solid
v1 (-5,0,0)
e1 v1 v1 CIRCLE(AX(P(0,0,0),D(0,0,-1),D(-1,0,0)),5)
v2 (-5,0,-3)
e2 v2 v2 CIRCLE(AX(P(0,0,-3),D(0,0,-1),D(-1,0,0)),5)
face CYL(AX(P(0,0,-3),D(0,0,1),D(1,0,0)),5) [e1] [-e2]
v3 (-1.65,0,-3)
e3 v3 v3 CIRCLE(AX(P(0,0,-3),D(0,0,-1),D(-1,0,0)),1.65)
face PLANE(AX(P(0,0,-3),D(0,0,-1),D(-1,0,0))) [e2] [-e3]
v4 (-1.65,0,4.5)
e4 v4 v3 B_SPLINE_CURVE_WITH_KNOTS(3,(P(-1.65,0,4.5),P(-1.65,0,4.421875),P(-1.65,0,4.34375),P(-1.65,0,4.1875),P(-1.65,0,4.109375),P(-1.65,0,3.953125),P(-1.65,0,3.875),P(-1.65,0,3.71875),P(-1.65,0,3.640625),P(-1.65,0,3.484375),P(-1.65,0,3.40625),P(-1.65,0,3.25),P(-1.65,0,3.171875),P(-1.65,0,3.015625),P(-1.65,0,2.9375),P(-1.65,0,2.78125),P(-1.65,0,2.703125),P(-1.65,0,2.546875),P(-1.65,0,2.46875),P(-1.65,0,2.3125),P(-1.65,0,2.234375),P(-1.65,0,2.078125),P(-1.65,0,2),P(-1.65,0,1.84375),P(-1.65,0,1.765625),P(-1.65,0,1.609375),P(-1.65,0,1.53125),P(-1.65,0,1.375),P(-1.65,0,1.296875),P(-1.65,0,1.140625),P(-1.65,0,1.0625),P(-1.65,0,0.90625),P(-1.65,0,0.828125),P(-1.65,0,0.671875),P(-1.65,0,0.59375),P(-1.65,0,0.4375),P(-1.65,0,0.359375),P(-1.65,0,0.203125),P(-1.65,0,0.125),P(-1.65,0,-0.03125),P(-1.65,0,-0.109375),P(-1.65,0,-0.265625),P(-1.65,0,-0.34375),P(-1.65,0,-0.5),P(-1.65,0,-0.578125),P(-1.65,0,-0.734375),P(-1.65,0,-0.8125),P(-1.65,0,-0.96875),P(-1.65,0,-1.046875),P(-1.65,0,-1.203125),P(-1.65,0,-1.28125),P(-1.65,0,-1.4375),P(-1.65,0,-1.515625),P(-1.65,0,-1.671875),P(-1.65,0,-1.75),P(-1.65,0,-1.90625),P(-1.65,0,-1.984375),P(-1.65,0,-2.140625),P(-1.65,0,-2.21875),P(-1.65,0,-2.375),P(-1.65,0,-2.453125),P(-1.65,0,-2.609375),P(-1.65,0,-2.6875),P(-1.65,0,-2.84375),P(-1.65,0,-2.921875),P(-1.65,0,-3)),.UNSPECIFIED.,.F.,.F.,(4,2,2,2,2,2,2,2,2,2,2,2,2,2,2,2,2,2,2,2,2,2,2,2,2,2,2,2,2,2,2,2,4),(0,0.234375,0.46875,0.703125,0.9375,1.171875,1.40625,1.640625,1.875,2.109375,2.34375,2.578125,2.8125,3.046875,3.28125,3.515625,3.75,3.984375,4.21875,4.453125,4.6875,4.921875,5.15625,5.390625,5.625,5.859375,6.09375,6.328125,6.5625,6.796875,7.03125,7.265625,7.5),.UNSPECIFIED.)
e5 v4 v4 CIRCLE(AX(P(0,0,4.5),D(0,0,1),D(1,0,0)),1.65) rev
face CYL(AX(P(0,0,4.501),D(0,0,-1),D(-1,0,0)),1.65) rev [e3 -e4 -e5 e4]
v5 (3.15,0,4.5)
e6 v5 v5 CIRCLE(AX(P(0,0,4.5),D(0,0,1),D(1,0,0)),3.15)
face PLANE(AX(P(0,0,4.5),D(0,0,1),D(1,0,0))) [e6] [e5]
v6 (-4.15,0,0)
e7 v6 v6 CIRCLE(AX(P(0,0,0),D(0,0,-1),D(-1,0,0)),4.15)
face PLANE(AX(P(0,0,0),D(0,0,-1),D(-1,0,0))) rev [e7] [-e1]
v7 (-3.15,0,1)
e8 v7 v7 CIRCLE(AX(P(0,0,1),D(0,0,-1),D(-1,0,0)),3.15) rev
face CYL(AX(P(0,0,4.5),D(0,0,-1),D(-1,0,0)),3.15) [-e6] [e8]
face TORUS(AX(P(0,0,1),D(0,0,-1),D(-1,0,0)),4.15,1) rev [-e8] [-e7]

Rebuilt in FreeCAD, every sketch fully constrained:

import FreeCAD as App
import Part
import Sketcher

V = App.Vector
Q = App.Units.Quantity


def edges_at(feature, points):
    """Names of the edges that pass closest to the given points."""
    edges = feature.Shape.Edges
    near = lambda p: min(range(len(edges)), key=lambda i: edges[i].distToShape(Part.Vertex(*p))[0])
    return sorted({f"Edge{near(p) + 1}" for p in points})

doc = App.newDocument("Part")
params = doc.addObject("Spreadsheet::Sheet", "Params")
for row, (alias, value) in enumerate([
    ("sketch1_diameter", "6.3 mm"),
    ("pad1_length", "4.5 mm"),
    ("sketch2_diameter", "10 mm"),
    ("pad2_length", "3 mm"),
    ("fillet_radius", "1 mm"),
    ("sketch3_diameter", "3.3 mm"),
], start=1):
    params.set(f"A{row}", alias)
    params.set(f"B{row}", "=" + value)
    params.setAlias(f"B{row}", alias)

body = doc.addObject("PartDesign::Body", "Body")

sketch1 = body.newObject("Sketcher::SketchObject", "Sketch")
sketch1.AttachmentSupport = (doc.getObject("XY_Plane"), [""])
sketch1.MapMode = "FlatFace"
sketch1.addGeometry(Part.Circle(V(0, 0, 0), V(0, 0, 1), 3.1), False)
sketch1.addConstraint([
    Sketcher.Constraint("Coincident", 0, 3, -1, 1),
    Sketcher.Constraint("Diameter", 0, Q("6.3 mm")),
])
sketch1.setExpression("Constraints[1]", "Params.sketch1_diameter")
pad1 = body.newObject("PartDesign::Pad", "Pad")
pad1.Profile = sketch1
pad1.setExpression("Length", "Params.pad1_length")

sketch2 = body.newObject("Sketcher::SketchObject", "Sketch001")
sketch2.AttachmentSupport = (doc.getObject("XY_Plane"), [""])
sketch2.MapMode = "FlatFace"
sketch2.addGeometry(Part.Circle(V(0, 0, 0), V(0, 0, 1), 5), False)
sketch2.addConstraint([
    Sketcher.Constraint("Coincident", 0, 3, -1, 1),
    Sketcher.Constraint("Diameter", 0, Q("10 mm")),
])
sketch2.setExpression("Constraints[1]", "Params.sketch2_diameter")
pad2 = body.newObject("PartDesign::Pad", "Pad001")
pad2.Profile = sketch2
pad2.setExpression("Length", "Params.pad2_length")
pad2.Reversed = True
doc.recompute()

fillet = body.newObject("PartDesign::Fillet", "Fillet")
fillet.Base = (pad2, edges_at(pad2, [(-3.15, 0, 0)]))
fillet.setExpression("Radius", "Params.fillet_radius")

sketch3 = body.newObject("Sketcher::SketchObject", "Sketch002")
sketch3.AttachmentSupport = (doc.getObject("XY_Plane"), [""])
sketch3.MapMode = "FlatFace"
sketch3.AttachmentOffset = App.Placement(V(0, 0, -3), App.Rotation())
sketch3.addGeometry(Part.Circle(V(0, 0, 0), V(0, 0, 1), 1.6), False)
sketch3.addConstraint([
    Sketcher.Constraint("Coincident", 0, 3, -1, 1),
    Sketcher.Constraint("Diameter", 0, Q("3.3 mm")),
])
sketch3.setExpression("Constraints[1]", "Params.sketch3_diameter")
pocket1 = body.newObject("PartDesign::Pocket", "Pocket")
pocket1.Profile = sketch3
pocket1.Type = "UpToFirst"
pocket1.Reversed = True

doc.recompute()
